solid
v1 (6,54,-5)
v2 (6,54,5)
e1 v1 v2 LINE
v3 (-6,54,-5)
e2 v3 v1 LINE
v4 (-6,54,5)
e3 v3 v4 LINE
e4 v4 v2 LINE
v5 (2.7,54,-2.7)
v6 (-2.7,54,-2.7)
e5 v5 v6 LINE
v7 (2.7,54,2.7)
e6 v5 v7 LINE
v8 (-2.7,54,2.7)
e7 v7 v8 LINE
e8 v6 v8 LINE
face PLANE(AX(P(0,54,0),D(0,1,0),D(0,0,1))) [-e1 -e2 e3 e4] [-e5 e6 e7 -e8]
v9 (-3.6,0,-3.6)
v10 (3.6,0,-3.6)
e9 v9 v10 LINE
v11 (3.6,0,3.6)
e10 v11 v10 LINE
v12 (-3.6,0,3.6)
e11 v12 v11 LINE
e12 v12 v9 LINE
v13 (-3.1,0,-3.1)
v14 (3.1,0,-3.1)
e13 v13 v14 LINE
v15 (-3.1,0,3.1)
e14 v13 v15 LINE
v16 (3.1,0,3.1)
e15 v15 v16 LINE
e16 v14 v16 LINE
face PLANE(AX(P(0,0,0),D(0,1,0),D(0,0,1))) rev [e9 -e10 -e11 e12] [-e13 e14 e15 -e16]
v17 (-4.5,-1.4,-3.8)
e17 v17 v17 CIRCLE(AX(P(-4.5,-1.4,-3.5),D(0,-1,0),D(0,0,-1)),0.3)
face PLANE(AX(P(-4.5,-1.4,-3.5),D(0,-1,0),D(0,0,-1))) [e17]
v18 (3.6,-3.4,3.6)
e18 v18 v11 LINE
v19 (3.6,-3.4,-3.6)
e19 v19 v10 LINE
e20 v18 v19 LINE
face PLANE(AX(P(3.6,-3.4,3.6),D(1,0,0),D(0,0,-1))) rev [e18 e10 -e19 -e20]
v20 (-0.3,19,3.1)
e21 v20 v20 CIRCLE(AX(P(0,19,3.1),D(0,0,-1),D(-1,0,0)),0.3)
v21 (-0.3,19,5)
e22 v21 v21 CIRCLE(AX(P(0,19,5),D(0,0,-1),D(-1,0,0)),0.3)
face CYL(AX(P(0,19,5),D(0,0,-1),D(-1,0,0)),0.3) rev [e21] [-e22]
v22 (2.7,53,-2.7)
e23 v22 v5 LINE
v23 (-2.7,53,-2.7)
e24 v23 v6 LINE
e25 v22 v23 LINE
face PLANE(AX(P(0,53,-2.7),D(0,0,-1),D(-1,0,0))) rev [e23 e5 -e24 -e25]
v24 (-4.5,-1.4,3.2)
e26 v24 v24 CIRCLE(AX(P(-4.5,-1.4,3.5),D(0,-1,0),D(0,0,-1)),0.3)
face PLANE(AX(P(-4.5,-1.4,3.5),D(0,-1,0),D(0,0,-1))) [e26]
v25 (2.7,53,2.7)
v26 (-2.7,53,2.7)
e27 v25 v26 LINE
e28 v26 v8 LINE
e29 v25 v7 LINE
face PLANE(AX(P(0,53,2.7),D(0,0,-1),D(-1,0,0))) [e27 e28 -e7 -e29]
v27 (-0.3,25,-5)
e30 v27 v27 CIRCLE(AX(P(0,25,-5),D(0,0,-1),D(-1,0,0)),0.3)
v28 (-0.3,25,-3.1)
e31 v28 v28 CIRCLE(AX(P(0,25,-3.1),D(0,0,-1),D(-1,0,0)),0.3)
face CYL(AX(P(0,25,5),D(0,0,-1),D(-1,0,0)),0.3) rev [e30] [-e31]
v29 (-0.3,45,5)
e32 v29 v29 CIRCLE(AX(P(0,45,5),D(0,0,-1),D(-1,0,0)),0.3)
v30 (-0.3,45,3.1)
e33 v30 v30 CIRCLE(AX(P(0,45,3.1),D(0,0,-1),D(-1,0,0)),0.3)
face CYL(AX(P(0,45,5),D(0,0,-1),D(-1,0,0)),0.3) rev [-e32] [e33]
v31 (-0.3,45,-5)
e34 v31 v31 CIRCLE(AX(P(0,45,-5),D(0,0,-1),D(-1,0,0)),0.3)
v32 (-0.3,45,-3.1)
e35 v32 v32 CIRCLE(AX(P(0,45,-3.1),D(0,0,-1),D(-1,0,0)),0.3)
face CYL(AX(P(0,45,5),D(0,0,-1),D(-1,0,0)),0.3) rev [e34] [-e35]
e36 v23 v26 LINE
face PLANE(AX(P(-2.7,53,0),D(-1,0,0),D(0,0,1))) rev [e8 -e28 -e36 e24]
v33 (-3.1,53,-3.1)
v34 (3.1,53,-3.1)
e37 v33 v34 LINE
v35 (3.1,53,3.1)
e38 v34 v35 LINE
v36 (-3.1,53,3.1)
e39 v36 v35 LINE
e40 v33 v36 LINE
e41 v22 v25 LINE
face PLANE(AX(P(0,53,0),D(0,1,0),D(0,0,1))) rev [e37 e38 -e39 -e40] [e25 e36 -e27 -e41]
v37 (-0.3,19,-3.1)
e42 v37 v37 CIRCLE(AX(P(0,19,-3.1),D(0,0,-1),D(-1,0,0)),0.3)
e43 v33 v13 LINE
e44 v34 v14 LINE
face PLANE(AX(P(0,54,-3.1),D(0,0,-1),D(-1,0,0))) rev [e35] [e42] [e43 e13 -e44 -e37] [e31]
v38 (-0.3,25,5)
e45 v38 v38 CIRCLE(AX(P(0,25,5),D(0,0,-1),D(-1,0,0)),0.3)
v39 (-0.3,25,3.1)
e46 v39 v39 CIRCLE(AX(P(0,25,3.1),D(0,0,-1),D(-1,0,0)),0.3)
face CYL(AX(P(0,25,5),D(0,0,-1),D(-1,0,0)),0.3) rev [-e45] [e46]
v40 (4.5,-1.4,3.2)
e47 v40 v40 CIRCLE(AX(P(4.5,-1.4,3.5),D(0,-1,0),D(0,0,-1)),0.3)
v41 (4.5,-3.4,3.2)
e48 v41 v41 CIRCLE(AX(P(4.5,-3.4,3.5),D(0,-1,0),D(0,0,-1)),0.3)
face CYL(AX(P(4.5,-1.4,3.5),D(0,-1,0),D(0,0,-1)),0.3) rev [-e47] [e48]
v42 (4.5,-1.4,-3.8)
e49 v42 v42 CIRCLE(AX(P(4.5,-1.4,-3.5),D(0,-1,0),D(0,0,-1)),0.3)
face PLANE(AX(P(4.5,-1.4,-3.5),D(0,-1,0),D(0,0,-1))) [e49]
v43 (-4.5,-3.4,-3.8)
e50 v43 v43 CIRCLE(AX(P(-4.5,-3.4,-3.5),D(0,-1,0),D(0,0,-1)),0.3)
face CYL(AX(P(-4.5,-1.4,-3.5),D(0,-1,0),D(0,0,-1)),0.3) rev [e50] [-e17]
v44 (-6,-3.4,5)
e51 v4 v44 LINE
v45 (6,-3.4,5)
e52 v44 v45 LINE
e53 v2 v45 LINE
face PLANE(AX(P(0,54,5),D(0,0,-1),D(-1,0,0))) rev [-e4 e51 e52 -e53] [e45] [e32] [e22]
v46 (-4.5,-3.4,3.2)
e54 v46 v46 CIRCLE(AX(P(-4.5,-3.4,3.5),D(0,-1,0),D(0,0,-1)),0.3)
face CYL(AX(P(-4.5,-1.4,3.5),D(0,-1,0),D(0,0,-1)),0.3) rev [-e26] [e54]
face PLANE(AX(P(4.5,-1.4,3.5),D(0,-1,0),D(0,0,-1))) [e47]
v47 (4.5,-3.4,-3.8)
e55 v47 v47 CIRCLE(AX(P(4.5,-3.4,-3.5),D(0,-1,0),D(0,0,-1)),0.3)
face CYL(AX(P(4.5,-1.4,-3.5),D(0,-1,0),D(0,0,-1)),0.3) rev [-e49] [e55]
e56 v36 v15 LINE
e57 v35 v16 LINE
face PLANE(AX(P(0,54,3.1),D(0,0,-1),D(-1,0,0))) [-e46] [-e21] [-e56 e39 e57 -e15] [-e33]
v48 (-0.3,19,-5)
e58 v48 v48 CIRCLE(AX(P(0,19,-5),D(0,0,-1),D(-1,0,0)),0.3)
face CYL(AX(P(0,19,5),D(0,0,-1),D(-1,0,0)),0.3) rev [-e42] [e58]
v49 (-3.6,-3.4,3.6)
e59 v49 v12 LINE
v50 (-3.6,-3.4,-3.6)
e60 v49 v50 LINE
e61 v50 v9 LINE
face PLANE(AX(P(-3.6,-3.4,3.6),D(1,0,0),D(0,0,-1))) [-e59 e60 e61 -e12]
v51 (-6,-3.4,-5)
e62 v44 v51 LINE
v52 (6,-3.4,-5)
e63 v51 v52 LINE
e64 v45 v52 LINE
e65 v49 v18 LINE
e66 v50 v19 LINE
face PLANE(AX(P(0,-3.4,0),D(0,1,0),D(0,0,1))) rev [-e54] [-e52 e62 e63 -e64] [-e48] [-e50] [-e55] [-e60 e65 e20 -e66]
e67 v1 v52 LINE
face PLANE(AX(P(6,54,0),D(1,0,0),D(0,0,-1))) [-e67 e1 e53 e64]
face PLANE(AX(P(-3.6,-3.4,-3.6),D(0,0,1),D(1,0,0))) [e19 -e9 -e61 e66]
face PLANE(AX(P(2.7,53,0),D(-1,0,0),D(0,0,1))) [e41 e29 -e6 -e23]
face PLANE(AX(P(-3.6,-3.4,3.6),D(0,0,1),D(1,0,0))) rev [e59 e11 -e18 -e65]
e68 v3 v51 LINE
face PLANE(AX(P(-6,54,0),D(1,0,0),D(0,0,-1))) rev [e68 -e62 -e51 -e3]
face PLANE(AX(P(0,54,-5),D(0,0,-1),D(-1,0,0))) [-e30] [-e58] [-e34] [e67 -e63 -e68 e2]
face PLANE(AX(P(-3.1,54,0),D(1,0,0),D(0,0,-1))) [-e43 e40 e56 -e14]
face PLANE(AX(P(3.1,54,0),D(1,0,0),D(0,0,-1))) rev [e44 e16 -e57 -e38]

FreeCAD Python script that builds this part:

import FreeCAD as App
import Part
import Sketcher
from FreeCAD import Vector


def add_polygon(sketch, points):
    """Adds a closed chain of lines whose ends are joined by coincident constraints."""
    first, n = sketch.GeometryCount, len(points)
    for a, b in zip(points, points[1:] + points[:1]):
        sketch.addGeometry(Part.LineSegment(App.Vector(*a, 0), App.Vector(*b, 0)), False)
    for i in range(n):
        sketch.addConstraint(Sketcher.Constraint("Coincident", first + i, 2, first + (i + 1) % n, 1))

doc = App.newDocument("Part")
params = doc.addObject("Spreadsheet::Sheet", "Params")
for row, (alias, value) in enumerate([
    ("sketch1_width", "12 mm"),
    ("sketch1_height", "10 mm"),
    ("sketch1_width2", "6.2 mm"),
    ("pad1_length", "54 mm"),
    ("sketch2_width", "12 mm"),
    ("sketch2_height", "10 mm"),
    ("sketch2_width2", "5.4 mm"),
    ("pad2_length", "1 mm"),
    ("sketch3_width", "12 mm"),
    ("sketch3_height", "10 mm"),
    ("sketch3_width2", "7.2 mm"),
    ("pad3_length", "3.4 mm"),
    ("sketch4_diameter", "0.6 mm"),
    ("pocket1_length", "2 mm"),
    ("sketch5_diameter", "0.6 mm"),
], start=1):
    params.set(f"A{row}", alias)
    params.set(f"B{row}", "=" + value)
    params.setAlias(f"B{row}", alias)

body = doc.addObject("PartDesign::Body", "Body")

sketch1 = body.newObject("Sketcher::SketchObject", "Sketch")
sketch1.AttachmentSupport = (doc.getObject("XZ_Plane"), [""])
sketch1.MapMode = "FlatFace"
add_polygon(sketch1, [(-6, -5), (-6, 5), (6, 5), (6, -5)])
add_polygon(sketch1, [(3, 3), (-3, 3), (-3, -3), (3, -3)])
sketch1.addConstraint([
    Sketcher.Constraint("Vertical", 0),
    Sketcher.Constraint("Horizontal", 1),
    Sketcher.Constraint("Vertical", 2),
    Sketcher.Constraint("Horizontal", 3),
    Sketcher.Constraint("Horizontal", 4),
    Sketcher.Constraint("Vertical", 5),
    Sketcher.Constraint("Horizontal", 6),
    Sketcher.Constraint("Vertical", 7),
    Sketcher.Constraint("Symmetric", 0, 2, 2, 2, -1, 1),
    Sketcher.Constraint("Symmetric", 4, 2, 6, 2, -1, 1),
    Sketcher.Constraint("Equal", 6, 5),
    Sketcher.Constraint("DistanceX", 1, 1, 1, 2, 12.0),
    Sketcher.Constraint("DistanceY", 0, 1, 0, 2, 10.0),
    Sketcher.Constraint("DistanceX", 4, 2, 4, 1, 6.2),
])
sketch1.setExpression("Constraints[19]", "Params.sketch1_width")
sketch1.setExpression("Constraints[20]", "Params.sketch1_height")
sketch1.setExpression("Constraints[21]", "Params.sketch1_width2")
pad1 = body.newObject("PartDesign::Pad", "Pad")
pad1.Profile = sketch1
pad1.setExpression("Length", "Params.pad1_length")
pad1.Reversed = True

sketch2 = body.newObject("Sketcher::SketchObject", "Sketch001")
sketch2.AttachmentSupport = (doc.getObject("XZ_Plane"), [""])
sketch2.MapMode = "FlatFace"
sketch2.AttachmentOffset = App.Placement(Vector(0, 0, -54), App.Rotation())
add_polygon(sketch2, [(-6, -5), (-6, 5), (6, 5), (6, -5)])
add_polygon(sketch2, [(3, 3), (-3, 3), (-3, -3), (3, -3)])
sketch2.addConstraint([
    Sketcher.Constraint("Vertical", 0),
    Sketcher.Constraint("Horizontal", 1),
    Sketcher.Constraint("Vertical", 2),
    Sketcher.Constraint("Horizontal", 3),
    Sketcher.Constraint("Horizontal", 4),
    Sketcher.Constraint("Vertical", 5),
    Sketcher.Constraint("Horizontal", 6),
    Sketcher.Constraint("Vertical", 7),
    Sketcher.Constraint("Symmetric", 0, 2, 2, 2, -1, 1),
    Sketcher.Constraint("Symmetric", 4, 2, 6, 2, -1, 1),
    Sketcher.Constraint("Equal", 6, 5),
    Sketcher.Constraint("DistanceX", 1, 1, 1, 2, 12.0),
    Sketcher.Constraint("DistanceY", 0, 1, 0, 2, 10.0),
    Sketcher.Constraint("DistanceX", 4, 2, 4, 1, 5.4),
])
sketch2.setExpression("Constraints[19]", "Params.sketch2_width")
sketch2.setExpression("Constraints[20]", "Params.sketch2_height")
sketch2.setExpression("Constraints[21]", "Params.sketch2_width2")
pad2 = body.newObject("PartDesign::Pad", "Pad001")
pad2.Profile = sketch2
pad2.setExpression("Length", "Params.pad2_length")

sketch3 = body.newObject("Sketcher::SketchObject", "Sketch002")
sketch3.AttachmentSupport = (doc.getObject("XZ_Plane"), [""])
sketch3.MapMode = "FlatFace"
add_polygon(sketch3, [(-6, 5), (-6, -5), (6, -5), (6, 5)])
add_polygon(sketch3, [(4, -4), (-4, -4), (-4, 4), (4, 4)])
sketch3.addConstraint([
    Sketcher.Constraint("Vertical", 0),
    Sketcher.Constraint("Horizontal", 1),
    Sketcher.Constraint("Vertical", 2),
    Sketcher.Constraint("Horizontal", 3),
    Sketcher.Constraint("Horizontal", 4),
    Sketcher.Constraint("Vertical", 5),
    Sketcher.Constraint("Horizontal", 6),
    Sketcher.Constraint("Vertical", 7),
    Sketcher.Constraint("Symmetric", 0, 2, 2, 2, -1, 1),
    Sketcher.Constraint("Symmetric", 4, 2, 6, 2, -1, 1),
    Sketcher.Constraint("Equal", 6, 5),
    Sketcher.Constraint("DistanceX", 1, 1, 1, 2, 12.0),
    Sketcher.Constraint("DistanceY", 0, 2, 0, 1, 10.0),
    Sketcher.Constraint("DistanceX", 4, 2, 4, 1, 7.2),
])
sketch3.setExpression("Constraints[19]", "Params.sketch3_width")
sketch3.setExpression("Constraints[20]", "Params.sketch3_height")
sketch3.setExpression("Constraints[21]", "Params.sketch3_width2")
pad3 = body.newObject("PartDesign::Pad", "Pad002")
pad3.Profile = sketch3
pad3.setExpression("Length", "Params.pad3_length")

sketch4 = body.newObject("Sketcher::SketchObject", "Sketch003")
sketch4.AttachmentSupport = (doc.getObject("XZ_Plane"), [""])
sketch4.MapMode = "FlatFace"
sketch4.AttachmentOffset = App.Placement(Vector(0, 0, 3.4), App.Rotation())
sketch4.addGeometry([
    Part.Circle(Vector(-4.5, 3.5, 0), Vector(0, 0, 1), 0.3),
    Part.Circle(Vector(4.5, -3.5, 0), Vector(0, 0, 1), 0.3),
    Part.Circle(Vector(4.5, 3.5, 0), Vector(0, 0, 1), 0.3),
    Part.Circle(Vector(-4.5, -3.5, 0), Vector(0, 0, 1), 0.3),
], False)
sketch4.addConstraint([
    Sketcher.Constraint("Equal", 0, 1),
    Sketcher.Constraint("Equal", 1, 2),
    Sketcher.Constraint("Equal", 2, 3),
    Sketcher.Constraint("Symmetric", 0, 3, 1, 3, -1, 1),
    Sketcher.Constraint("Symmetric", 2, 3, 3, 3, -1, 1),
    Sketcher.Constraint("Symmetric", 0, 3, 2, 3, -2),
    Sketcher.Constraint("Diameter", 0, 0.6),
    Sketcher.Constraint("DistanceX", 0, 3, 1, 3, 9.0),
    Sketcher.Constraint("DistanceY", 1, 3, 0, 3, 7.0),
])
sketch4.setExpression("Constraints[6]", "Params.sketch4_diameter")
pocket1 = body.newObject("PartDesign::Pocket", "Pocket")
pocket1.Profile = sketch4
pocket1.setExpression("Length", "Params.pocket1_length")

sketch5 = body.newObject("Sketcher::SketchObject", "Sketch004")
sketch5.AttachmentSupport = (doc.getObject("XY_Plane"), [""])
sketch5.MapMode = "FlatFace"
sketch5.AttachmentOffset = App.Placement(Vector(0, 0, -5), App.Rotation())
sketch5.addGeometry([
    Part.Circle(Vector(0, 19, 0), Vector(0, 0, 1), 0.3),
    Part.Circle(Vector(0, 25, 0), Vector(0, 0, 1), 0.3),
    Part.Circle(Vector(0, 45, 0), Vector(0, 0, 1), 0.3),
], False)
sketch5.addConstraint([
    Sketcher.Constraint("Equal", 0, 1),
    Sketcher.Constraint("Equal", 1, 2),
    Sketcher.Constraint("PointOnObject", 0, 3, -2),
    Sketcher.Constraint("PointOnObject", 1, 3, -2),
    Sketcher.Constraint("PointOnObject", 2, 3, -2),
    Sketcher.Constraint("Diameter", 0, 0.6),
    Sketcher.Constraint("DistanceY", -1, 1, 0, 3, 19.0),
    Sketcher.Constraint("DistanceY", -1, 1, 1, 3, 25.0),
    Sketcher.Constraint("DistanceY", -1, 1, 2, 3, 45.0),
])
sketch5.setExpression("Constraints[5]", "Params.sketch5_diameter")
pocket2 = body.newObject("PartDesign::Pocket", "Pocket001")
pocket2.Profile = sketch5
pocket2.Type = "ThroughAll"
pocket2.Reversed = True

doc.recompute()
